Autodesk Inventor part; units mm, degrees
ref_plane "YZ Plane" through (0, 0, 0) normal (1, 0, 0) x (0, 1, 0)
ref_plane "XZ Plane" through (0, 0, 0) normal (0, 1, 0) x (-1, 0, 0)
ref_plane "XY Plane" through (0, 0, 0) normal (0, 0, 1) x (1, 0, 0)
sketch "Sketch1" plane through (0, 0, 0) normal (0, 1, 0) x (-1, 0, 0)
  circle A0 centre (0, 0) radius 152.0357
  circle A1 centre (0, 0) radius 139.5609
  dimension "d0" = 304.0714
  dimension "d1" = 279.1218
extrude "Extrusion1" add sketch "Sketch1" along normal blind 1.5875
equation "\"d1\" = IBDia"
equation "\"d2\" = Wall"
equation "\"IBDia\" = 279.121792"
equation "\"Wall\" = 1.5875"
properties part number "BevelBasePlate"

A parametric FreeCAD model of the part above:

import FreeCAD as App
import Part
import Sketcher
Q = App.Units.Quantity

doc = App.newDocument("Part")
body = doc.addObject("PartDesign::Body", "Body")

sketch1 = body.newObject("Sketcher::SketchObject", "Sketch")
sketch1.AttachmentSupport = (doc.getObject("XZ_Plane"), [""])
sketch1.MapMode = "FlatFace"
sketch1.addGeometry([
    Part.Circle(App.Vector(0, 0, 0), App.Vector(0, 0, 1), 152),
    Part.Circle(App.Vector(0, 0, 0), App.Vector(0, 0, 1), 140),
], False)
sketch1.addConstraint([
    Sketcher.Constraint("Coincident", 0, 3, -1, 1),
    Sketcher.Constraint("Coincident", 1, 3, -1, 1),
    Sketcher.Constraint("Diameter", 0, 304.0714),
    Sketcher.Constraint("Diameter", 1, 279.1218),
])
pad1 = body.newObject("PartDesign::Pad", "Pad")
pad1.Profile = sketch1
pad1.Length = Q("0.0625 in")
pad1.Reversed = True

doc.recompute()
